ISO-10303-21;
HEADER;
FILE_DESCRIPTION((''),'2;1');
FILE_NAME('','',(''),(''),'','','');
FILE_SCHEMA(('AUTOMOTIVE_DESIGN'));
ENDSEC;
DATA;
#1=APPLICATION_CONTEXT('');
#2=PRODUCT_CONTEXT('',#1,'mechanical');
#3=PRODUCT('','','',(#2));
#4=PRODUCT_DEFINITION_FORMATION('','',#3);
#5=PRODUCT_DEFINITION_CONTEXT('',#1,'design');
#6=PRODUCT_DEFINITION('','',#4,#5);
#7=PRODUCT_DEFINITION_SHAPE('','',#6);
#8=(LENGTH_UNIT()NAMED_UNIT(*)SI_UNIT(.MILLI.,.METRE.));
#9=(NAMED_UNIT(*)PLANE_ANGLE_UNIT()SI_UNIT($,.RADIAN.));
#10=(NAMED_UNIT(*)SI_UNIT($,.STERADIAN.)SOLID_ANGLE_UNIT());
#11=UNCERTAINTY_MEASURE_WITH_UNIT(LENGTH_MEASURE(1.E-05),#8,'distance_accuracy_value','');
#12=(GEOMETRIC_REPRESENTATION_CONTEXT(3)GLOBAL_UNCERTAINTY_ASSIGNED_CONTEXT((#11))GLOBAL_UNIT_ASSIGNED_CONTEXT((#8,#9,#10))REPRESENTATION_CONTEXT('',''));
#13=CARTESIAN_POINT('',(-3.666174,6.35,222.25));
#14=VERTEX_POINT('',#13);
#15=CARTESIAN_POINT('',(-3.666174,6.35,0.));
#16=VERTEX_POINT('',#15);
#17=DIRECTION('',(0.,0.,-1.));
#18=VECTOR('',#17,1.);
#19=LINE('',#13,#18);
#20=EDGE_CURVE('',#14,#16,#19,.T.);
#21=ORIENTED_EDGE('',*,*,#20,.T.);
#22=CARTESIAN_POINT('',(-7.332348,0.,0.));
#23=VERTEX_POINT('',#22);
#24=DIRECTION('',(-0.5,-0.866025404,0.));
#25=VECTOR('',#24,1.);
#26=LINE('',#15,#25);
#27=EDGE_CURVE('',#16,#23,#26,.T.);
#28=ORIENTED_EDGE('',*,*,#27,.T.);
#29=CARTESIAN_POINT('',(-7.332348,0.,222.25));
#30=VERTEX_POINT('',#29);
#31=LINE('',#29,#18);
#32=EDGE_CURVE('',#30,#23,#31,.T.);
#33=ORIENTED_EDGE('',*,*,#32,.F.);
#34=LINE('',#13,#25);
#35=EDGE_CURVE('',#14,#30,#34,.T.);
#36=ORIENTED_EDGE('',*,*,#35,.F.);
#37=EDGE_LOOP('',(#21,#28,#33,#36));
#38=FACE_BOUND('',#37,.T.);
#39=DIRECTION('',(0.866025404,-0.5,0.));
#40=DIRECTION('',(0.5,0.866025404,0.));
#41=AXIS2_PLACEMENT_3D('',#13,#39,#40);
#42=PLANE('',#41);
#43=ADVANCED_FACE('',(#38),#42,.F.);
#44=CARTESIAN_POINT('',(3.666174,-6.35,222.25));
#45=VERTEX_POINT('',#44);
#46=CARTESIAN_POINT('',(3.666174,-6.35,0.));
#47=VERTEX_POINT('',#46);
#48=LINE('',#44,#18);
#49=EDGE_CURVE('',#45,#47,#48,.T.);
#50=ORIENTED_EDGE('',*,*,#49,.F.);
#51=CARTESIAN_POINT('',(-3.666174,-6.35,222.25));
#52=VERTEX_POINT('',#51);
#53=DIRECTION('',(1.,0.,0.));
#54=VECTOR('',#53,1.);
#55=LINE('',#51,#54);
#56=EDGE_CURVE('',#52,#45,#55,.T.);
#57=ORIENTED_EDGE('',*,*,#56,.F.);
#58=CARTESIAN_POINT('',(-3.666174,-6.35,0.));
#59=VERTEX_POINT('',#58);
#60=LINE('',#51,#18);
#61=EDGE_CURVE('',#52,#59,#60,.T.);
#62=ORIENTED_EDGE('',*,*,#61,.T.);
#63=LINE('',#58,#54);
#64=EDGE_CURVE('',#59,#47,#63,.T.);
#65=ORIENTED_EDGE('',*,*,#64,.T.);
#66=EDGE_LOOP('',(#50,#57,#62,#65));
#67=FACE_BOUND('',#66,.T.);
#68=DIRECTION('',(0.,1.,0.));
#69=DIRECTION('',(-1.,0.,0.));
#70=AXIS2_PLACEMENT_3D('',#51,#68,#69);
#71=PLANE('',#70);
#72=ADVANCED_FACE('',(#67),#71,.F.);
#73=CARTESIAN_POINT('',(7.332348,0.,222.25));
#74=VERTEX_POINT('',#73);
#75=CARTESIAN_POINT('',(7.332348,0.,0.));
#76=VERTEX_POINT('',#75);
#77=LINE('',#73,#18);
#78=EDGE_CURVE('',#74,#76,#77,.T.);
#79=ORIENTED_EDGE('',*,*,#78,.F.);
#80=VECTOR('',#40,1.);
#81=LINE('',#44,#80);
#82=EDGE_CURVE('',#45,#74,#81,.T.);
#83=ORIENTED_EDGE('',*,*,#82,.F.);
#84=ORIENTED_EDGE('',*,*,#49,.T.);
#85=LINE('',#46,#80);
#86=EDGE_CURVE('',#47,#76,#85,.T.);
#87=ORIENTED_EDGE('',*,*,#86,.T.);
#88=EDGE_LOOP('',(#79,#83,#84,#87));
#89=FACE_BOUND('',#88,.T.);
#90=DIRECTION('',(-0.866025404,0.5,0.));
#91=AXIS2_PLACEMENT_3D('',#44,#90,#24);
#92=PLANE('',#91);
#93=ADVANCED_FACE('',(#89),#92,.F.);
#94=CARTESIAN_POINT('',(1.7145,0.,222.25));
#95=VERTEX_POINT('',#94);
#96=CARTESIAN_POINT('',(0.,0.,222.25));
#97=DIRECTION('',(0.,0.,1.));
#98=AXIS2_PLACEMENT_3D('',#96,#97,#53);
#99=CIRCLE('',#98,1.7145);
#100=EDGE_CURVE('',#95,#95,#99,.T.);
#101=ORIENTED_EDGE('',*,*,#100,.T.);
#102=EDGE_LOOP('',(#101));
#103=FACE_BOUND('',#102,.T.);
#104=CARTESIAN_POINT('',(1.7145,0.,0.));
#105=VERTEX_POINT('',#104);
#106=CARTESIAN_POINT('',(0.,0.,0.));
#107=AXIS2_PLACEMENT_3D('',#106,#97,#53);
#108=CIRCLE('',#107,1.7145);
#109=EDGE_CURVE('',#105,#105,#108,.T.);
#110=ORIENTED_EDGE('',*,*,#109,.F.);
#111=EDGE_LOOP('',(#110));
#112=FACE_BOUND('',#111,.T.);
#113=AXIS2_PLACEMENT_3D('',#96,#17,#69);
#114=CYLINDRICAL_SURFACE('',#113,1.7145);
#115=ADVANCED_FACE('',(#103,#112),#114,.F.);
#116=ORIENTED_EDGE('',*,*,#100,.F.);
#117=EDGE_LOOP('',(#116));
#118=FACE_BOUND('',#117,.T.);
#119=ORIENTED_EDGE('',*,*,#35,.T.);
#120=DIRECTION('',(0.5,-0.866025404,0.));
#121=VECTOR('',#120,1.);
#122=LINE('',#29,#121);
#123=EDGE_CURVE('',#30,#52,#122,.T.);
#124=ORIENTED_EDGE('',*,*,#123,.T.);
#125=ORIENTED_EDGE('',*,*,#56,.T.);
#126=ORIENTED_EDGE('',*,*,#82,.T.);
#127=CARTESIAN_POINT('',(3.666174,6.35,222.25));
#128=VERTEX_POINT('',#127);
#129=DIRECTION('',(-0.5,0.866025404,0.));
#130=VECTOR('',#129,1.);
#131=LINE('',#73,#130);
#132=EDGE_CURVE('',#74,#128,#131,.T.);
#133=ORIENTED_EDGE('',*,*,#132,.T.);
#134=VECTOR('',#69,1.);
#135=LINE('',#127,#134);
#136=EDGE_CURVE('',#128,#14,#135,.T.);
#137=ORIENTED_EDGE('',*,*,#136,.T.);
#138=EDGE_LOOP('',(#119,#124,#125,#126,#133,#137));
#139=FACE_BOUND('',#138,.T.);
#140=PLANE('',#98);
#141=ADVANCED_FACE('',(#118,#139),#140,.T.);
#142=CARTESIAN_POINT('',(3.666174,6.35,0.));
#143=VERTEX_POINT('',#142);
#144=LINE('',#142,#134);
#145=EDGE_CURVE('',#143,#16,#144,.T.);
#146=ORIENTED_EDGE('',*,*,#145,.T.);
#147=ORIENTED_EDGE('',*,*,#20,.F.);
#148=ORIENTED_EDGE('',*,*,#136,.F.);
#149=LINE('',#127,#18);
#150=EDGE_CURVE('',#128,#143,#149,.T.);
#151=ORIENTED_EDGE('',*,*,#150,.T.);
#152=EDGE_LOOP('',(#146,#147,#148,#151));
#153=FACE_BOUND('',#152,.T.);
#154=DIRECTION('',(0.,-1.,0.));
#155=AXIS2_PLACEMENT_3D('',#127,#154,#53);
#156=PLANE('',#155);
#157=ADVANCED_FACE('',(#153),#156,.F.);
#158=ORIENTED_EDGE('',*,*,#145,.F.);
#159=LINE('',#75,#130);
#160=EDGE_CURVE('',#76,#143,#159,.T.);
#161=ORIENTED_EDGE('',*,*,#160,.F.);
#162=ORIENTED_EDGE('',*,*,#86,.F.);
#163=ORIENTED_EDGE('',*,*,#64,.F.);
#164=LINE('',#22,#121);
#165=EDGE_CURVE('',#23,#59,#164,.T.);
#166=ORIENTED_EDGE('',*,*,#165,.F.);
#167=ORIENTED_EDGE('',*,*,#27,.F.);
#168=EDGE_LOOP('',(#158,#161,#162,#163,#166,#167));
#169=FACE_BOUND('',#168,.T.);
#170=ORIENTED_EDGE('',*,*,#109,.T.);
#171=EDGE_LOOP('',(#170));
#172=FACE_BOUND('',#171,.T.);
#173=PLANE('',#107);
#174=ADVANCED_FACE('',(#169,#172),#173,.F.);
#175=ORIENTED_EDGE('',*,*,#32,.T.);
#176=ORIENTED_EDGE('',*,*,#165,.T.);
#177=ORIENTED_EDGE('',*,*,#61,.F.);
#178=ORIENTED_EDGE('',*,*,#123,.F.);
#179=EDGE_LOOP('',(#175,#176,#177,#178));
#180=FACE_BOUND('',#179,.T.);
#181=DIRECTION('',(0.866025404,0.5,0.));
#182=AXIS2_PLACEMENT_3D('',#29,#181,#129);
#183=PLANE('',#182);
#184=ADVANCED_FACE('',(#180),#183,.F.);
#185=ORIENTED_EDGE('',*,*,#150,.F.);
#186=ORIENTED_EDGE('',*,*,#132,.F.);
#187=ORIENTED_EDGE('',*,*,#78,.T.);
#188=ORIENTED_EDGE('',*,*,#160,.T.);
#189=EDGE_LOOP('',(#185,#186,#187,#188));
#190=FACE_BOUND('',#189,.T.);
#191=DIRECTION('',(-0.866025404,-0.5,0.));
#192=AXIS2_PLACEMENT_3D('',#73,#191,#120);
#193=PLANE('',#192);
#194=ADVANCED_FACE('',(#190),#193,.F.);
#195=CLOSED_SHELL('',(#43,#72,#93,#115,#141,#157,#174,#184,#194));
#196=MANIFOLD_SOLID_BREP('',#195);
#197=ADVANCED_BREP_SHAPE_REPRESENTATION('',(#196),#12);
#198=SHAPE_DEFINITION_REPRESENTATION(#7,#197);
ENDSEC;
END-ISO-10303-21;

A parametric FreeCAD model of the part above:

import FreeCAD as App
import Part
import Sketcher

V = App.Vector
Q = App.Units.Quantity


def add_polygon(sketch, points):
    """Adds a closed chain of lines whose ends are joined by coincident constraints."""
    first, n = sketch.GeometryCount, len(points)
    for a, b in zip(points, points[1:] + points[:1]):
        sketch.addGeometry(Part.LineSegment(App.Vector(*a, 0), App.Vector(*b, 0)), False)
    for i in range(n):
        sketch.addConstraint(Sketcher.Constraint("Coincident", first + i, 2, first + (i + 1) % n, 1))

doc = App.newDocument("Part")
params = doc.addObject("Spreadsheet::Sheet", "Params")
for row, (alias, value) in enumerate([
    ("sketch1_diameter", "0.135 in"),
    ("pad1_length", "8.75 in"),
], start=1):
    params.set(f"A{row}", alias)
    params.set(f"B{row}", "=" + value)
    params.setAlias(f"B{row}", alias)

body = doc.addObject("PartDesign::Body", "Body")

# Sketch on XY plane
sketch1 = body.newObject("Sketcher::SketchObject", "Sketch")
sketch1.AttachmentSupport = (doc.getObject("XY_Plane"), [""])
sketch1.MapMode = "FlatFace"
add_polygon(sketch1, [(7.3, 0), (3.7, 6.3), (-3.7, 6.3), (-7.3, 0), (-3.7, -6.3), (3.7, -6.3)])  # lines 0-5
sketch1.addGeometry(Part.Circle(V(0, 0, 0), V(0, 0, 1), 1.7), False)  # 6
sketch1.addConstraint([
    Sketcher.Constraint("Horizontal", 1),
    Sketcher.Constraint("Horizontal", 4),
    Sketcher.Constraint("Coincident", 6, 3, -1, 1),
    Sketcher.Constraint("Symmetric", 0, 2, 3, 2, -1, 1),
    Sketcher.Constraint("Symmetric", 2, 2, 5, 2, -1, 1),
    Sketcher.Constraint("PointOnObject", 2, 2, -1),
    Sketcher.Constraint("Parallel", 2, 5),
    Sketcher.Constraint("Vertical", 1, 2, 3, 2),
    Sketcher.Constraint("Diameter", 6, Q("0.135 in")),
    Sketcher.Constraint("Angle", 0, Q("120 deg")),
    Sketcher.Constraint("DistanceY", 3, 2, 1, 2, Q("0.5 in")),
    Sketcher.Constraint("DistanceX", 1, 2, 1, 1, 7.332348),
])
sketch1.setExpression("Constraints[14]", "Params.sketch1_diameter")
pad1 = body.newObject("PartDesign::Pad", "Pad")
pad1.Profile = sketch1
pad1.setExpression("Length", "Params.pad1_length")

doc.recompute()
